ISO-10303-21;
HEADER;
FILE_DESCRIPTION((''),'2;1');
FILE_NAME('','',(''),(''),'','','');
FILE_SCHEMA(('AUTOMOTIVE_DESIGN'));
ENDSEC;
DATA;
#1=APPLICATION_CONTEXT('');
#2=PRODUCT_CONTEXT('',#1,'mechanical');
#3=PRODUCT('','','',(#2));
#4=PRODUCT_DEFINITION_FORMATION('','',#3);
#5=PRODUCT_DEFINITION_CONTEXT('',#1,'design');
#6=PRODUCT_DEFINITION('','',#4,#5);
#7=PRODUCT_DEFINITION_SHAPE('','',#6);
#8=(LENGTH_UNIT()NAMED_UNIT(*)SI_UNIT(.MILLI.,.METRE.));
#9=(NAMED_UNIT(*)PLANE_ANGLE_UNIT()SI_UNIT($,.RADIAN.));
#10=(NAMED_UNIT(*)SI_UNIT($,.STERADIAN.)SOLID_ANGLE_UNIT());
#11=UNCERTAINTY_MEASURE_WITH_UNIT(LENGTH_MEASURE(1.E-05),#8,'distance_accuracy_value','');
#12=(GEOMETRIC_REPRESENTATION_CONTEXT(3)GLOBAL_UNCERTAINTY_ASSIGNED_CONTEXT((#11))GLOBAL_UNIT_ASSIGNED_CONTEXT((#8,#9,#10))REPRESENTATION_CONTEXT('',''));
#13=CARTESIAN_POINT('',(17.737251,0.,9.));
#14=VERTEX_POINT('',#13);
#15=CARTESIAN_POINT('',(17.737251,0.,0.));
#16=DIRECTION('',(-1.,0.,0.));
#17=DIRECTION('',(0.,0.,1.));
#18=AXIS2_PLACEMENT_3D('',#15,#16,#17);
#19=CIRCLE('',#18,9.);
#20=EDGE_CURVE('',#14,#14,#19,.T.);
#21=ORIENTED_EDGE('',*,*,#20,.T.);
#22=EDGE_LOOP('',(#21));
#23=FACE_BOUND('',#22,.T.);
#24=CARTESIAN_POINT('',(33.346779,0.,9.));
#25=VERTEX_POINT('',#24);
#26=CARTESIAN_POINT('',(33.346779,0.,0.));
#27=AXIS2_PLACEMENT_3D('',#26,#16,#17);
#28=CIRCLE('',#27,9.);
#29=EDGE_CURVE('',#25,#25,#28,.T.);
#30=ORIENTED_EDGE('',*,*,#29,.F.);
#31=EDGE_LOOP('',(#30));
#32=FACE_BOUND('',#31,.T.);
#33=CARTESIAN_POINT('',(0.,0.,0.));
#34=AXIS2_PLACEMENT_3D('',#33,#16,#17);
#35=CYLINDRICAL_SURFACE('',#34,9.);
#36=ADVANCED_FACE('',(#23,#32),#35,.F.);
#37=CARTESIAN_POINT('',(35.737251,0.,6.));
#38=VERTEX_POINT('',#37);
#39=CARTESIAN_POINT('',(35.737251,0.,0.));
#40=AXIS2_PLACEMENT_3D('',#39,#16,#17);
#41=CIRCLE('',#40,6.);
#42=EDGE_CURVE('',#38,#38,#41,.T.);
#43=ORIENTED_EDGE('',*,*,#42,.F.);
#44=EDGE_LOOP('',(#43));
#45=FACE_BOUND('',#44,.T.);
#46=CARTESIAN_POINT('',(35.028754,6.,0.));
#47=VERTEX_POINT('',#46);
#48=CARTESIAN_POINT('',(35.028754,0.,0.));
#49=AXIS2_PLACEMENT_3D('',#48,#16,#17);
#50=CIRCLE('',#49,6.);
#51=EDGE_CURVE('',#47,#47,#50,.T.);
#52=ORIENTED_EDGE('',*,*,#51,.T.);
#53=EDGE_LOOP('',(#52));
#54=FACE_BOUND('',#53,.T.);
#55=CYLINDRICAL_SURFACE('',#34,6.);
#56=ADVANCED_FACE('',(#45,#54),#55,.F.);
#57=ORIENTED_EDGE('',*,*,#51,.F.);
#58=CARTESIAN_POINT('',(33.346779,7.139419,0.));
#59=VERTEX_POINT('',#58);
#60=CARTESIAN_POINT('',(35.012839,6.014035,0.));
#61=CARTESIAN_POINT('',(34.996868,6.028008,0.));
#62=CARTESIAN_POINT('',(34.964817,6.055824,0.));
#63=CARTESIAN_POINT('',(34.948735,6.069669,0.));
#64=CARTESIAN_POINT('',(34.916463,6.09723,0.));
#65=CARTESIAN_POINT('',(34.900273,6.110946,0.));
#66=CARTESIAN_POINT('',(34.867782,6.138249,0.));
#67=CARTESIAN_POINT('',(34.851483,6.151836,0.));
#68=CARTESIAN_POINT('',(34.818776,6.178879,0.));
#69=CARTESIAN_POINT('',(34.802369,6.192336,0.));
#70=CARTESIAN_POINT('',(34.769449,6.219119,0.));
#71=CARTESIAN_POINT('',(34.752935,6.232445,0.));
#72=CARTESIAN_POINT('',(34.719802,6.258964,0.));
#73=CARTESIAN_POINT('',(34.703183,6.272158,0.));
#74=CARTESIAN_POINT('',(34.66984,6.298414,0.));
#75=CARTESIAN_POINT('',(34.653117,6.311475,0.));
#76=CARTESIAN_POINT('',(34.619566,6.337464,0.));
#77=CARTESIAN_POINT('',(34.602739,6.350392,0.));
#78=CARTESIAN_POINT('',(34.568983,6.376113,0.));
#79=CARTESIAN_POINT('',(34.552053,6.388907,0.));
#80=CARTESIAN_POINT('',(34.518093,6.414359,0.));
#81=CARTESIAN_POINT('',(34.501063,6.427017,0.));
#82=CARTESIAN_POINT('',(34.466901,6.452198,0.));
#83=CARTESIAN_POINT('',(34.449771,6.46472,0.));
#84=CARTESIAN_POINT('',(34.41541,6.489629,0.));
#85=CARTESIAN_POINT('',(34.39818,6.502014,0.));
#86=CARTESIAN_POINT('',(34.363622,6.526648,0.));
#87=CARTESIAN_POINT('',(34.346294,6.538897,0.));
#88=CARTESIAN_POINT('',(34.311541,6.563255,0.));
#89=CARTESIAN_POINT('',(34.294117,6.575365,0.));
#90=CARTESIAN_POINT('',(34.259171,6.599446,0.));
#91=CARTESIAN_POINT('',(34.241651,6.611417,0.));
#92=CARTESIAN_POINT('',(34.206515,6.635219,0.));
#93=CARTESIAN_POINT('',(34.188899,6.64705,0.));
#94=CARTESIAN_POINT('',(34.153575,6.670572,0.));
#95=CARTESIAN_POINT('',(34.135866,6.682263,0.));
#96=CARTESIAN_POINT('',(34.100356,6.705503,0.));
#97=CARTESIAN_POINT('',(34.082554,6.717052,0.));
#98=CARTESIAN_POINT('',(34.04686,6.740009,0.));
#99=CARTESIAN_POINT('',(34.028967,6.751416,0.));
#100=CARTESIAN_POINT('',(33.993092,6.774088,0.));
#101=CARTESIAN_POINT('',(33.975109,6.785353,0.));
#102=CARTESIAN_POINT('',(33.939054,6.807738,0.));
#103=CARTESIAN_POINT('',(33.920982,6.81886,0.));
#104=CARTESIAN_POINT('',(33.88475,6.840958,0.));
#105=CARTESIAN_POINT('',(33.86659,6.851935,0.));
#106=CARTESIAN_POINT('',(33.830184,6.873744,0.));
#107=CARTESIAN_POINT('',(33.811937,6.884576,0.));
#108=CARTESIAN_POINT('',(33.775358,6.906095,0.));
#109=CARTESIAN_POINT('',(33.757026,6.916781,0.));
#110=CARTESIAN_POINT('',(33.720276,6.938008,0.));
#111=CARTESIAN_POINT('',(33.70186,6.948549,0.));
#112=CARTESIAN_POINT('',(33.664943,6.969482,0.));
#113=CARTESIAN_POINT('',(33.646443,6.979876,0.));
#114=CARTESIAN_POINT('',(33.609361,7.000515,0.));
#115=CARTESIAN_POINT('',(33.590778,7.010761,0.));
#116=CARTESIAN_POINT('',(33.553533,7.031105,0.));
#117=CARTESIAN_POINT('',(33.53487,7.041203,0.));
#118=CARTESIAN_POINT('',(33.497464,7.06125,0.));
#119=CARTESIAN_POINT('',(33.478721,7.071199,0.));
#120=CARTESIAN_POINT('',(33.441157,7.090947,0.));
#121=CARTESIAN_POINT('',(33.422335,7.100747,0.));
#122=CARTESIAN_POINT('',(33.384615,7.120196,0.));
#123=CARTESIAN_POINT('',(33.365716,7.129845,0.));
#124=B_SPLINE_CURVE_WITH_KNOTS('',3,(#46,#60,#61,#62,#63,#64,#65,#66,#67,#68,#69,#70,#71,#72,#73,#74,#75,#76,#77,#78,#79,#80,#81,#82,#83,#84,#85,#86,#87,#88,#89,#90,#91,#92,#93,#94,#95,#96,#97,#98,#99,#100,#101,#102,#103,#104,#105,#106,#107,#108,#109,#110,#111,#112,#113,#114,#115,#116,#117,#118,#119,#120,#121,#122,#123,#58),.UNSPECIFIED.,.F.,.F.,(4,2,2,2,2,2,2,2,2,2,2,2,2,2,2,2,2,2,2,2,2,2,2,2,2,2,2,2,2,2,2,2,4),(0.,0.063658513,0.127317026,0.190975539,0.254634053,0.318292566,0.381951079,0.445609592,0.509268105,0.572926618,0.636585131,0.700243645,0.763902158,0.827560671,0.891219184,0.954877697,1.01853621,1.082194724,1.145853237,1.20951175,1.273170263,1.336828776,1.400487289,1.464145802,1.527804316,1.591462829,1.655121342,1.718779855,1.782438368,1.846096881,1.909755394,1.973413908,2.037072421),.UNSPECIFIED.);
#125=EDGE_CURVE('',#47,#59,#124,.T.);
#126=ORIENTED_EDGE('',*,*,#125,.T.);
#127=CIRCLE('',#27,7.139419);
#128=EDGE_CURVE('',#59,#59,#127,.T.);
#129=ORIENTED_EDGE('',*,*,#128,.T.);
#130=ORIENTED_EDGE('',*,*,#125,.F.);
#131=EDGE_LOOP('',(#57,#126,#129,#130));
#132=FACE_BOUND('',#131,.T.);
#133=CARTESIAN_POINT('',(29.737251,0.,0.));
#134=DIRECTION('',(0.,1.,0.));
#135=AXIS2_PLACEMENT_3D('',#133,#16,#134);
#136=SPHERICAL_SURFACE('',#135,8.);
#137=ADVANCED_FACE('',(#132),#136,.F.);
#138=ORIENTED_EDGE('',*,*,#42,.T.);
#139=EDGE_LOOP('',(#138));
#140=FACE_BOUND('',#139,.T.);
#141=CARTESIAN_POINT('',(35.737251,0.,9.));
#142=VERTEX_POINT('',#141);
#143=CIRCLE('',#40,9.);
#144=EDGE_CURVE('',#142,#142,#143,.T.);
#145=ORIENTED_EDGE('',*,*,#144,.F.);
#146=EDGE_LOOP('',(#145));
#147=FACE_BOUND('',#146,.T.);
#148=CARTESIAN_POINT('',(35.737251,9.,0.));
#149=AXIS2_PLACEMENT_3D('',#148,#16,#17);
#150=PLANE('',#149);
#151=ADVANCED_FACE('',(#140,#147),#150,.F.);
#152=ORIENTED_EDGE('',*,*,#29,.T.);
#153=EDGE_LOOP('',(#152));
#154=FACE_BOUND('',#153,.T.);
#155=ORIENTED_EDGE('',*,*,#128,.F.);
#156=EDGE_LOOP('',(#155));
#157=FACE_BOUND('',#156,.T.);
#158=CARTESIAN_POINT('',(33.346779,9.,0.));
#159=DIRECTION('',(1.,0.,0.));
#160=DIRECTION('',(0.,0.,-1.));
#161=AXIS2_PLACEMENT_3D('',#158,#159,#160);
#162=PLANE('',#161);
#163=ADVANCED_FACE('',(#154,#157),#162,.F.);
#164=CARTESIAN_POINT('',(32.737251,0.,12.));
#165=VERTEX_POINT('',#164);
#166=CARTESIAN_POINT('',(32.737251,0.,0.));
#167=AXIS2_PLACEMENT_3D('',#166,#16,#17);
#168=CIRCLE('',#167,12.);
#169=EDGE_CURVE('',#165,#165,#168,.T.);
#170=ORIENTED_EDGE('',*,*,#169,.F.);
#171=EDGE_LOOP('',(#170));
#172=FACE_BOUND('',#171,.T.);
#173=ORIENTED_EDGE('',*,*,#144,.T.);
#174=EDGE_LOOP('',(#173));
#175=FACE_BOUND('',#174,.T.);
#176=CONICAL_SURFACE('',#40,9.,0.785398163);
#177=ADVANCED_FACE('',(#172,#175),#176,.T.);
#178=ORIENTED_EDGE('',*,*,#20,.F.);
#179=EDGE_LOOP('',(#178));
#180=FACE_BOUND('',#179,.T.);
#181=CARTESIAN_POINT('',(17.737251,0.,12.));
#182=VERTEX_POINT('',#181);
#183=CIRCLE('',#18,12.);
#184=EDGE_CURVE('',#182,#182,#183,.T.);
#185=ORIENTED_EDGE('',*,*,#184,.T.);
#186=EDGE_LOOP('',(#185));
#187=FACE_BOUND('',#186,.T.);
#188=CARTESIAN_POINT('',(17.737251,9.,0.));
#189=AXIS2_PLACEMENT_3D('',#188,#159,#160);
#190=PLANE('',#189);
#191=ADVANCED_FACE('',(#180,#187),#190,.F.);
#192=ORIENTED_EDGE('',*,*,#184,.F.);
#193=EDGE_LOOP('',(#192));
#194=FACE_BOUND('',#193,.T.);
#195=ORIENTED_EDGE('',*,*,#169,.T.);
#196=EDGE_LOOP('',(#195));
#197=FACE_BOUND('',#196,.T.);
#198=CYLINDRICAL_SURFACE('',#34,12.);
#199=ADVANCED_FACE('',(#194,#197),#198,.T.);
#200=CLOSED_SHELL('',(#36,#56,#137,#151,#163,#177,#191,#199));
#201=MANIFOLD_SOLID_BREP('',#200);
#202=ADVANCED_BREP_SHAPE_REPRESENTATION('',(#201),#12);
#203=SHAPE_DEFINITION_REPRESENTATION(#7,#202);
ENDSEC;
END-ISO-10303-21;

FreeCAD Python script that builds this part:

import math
import FreeCAD as App
import Part
import Sketcher
Q = App.Units.Quantity

doc = App.newDocument("Part")
body = doc.addObject("PartDesign::Body", "Body")

# Sketch on XY plane
sketch1 = body.newObject("Sketcher::SketchObject", "Sketch")
sketch1.AttachmentSupport = (doc.getObject("XY_Plane"), [""])
sketch1.MapMode = "FlatFace"
sketch1.addGeometry(Part.LineSegment(App.Vector(35.7, 9, 0), App.Vector(32.7, 12, 0)), False)
sketch1.addGeometry(Part.LineSegment(App.Vector(32.7, 12, 0), App.Vector(17.7, 12, 0)), False)
sketch1.addGeometry(Part.LineSegment(App.Vector(17.7, 12, 0), App.Vector(17.7, 9, 0)), False)
sketch1.addGeometry(Part.LineSegment(App.Vector(17.7, 9, 0), App.Vector(33.3, 9, 0)), False)
sketch1.addGeometry(Part.LineSegment(App.Vector(33.3, 9, 0), App.Vector(33.3, 7.1, 0)), False)
sketch1.addGeometry(Part.ArcOfCircle(Part.Circle(App.Vector(29.7, 0, 0), App.Vector(0, 0, 1), 8), math.radians(48.59), math.radians(63.18)), False)
sketch1.addGeometry(Part.LineSegment(App.Vector(35, 6, 0), App.Vector(35.7, 6, 0)), False)
sketch1.addGeometry(Part.LineSegment(App.Vector(35.7, 6, 0), App.Vector(35.7, 9, 0)), False)
sketch1.addConstraint(Sketcher.Constraint("Coincident", 0, 2, 1, 1))
sketch1.addConstraint(Sketcher.Constraint("Coincident", 1, 2, 2, 1))
sketch1.addConstraint(Sketcher.Constraint("Coincident", 2, 2, 3, 1))
sketch1.addConstraint(Sketcher.Constraint("Coincident", 3, 2, 4, 1))
sketch1.addConstraint(Sketcher.Constraint("Coincident", 4, 2, 5, 2))
sketch1.addConstraint(Sketcher.Constraint("Coincident", 5, 1, 6, 1))
sketch1.addConstraint(Sketcher.Constraint("Coincident", 6, 2, 7, 1))
sketch1.addConstraint(Sketcher.Constraint("Coincident", 7, 2, 0, 1))
sketch1.addConstraint(Sketcher.Constraint("Horizontal", 1))
sketch1.addConstraint(Sketcher.Constraint("Vertical", 2))
sketch1.addConstraint(Sketcher.Constraint("Horizontal", 3))
sketch1.addConstraint(Sketcher.Constraint("Vertical", 4))
sketch1.addConstraint(Sketcher.Constraint("Horizontal", 6))
sketch1.addConstraint(Sketcher.Constraint("Vertical", 7))
sketch1.addConstraint(Sketcher.Constraint("PointOnObject", 5, 3, -1))
sketch1.addConstraint(Sketcher.Constraint("Horizontal", 3, 2, 7, 2))
sketch1.addConstraint(Sketcher.Constraint("Equal", 2, 7))
sketch1.addConstraint(Sketcher.Constraint("Radius", 5, Q("8 mm")))
sketch1.addConstraint(Sketcher.Constraint("DistanceX", 1, 2, 1, 1, Q("15 mm")))
sketch1.addConstraint(Sketcher.Constraint("DistanceY", 2, 2, 2, 1, Q("3 mm")))
sketch1.addConstraint(Sketcher.Constraint("Angle", 0, Q("135 deg")))
sketch1.addConstraint(Sketcher.Constraint("DistanceY", -1, 1, 0, 2, Q("12 mm")))
sketch1.addConstraint(Sketcher.Constraint("DistanceX", 5, 3, 0, 2, Q("3 mm")))
sketch1.addConstraint(Sketcher.Constraint("DistanceX", 3, 1, 3, 2, Q("15.609529 mm")))
sketch1.addConstraint(Sketcher.Constraint("DistanceX", -1, 1, 5, 3, Q("29.737251 mm")))
revolution = body.newObject("PartDesign::Revolution", "Revolution")
revolution.Profile = sketch1
revolution.ReferenceAxis = (sketch1, ["H_Axis"])
revolution.Angle = 360

doc.recompute()
